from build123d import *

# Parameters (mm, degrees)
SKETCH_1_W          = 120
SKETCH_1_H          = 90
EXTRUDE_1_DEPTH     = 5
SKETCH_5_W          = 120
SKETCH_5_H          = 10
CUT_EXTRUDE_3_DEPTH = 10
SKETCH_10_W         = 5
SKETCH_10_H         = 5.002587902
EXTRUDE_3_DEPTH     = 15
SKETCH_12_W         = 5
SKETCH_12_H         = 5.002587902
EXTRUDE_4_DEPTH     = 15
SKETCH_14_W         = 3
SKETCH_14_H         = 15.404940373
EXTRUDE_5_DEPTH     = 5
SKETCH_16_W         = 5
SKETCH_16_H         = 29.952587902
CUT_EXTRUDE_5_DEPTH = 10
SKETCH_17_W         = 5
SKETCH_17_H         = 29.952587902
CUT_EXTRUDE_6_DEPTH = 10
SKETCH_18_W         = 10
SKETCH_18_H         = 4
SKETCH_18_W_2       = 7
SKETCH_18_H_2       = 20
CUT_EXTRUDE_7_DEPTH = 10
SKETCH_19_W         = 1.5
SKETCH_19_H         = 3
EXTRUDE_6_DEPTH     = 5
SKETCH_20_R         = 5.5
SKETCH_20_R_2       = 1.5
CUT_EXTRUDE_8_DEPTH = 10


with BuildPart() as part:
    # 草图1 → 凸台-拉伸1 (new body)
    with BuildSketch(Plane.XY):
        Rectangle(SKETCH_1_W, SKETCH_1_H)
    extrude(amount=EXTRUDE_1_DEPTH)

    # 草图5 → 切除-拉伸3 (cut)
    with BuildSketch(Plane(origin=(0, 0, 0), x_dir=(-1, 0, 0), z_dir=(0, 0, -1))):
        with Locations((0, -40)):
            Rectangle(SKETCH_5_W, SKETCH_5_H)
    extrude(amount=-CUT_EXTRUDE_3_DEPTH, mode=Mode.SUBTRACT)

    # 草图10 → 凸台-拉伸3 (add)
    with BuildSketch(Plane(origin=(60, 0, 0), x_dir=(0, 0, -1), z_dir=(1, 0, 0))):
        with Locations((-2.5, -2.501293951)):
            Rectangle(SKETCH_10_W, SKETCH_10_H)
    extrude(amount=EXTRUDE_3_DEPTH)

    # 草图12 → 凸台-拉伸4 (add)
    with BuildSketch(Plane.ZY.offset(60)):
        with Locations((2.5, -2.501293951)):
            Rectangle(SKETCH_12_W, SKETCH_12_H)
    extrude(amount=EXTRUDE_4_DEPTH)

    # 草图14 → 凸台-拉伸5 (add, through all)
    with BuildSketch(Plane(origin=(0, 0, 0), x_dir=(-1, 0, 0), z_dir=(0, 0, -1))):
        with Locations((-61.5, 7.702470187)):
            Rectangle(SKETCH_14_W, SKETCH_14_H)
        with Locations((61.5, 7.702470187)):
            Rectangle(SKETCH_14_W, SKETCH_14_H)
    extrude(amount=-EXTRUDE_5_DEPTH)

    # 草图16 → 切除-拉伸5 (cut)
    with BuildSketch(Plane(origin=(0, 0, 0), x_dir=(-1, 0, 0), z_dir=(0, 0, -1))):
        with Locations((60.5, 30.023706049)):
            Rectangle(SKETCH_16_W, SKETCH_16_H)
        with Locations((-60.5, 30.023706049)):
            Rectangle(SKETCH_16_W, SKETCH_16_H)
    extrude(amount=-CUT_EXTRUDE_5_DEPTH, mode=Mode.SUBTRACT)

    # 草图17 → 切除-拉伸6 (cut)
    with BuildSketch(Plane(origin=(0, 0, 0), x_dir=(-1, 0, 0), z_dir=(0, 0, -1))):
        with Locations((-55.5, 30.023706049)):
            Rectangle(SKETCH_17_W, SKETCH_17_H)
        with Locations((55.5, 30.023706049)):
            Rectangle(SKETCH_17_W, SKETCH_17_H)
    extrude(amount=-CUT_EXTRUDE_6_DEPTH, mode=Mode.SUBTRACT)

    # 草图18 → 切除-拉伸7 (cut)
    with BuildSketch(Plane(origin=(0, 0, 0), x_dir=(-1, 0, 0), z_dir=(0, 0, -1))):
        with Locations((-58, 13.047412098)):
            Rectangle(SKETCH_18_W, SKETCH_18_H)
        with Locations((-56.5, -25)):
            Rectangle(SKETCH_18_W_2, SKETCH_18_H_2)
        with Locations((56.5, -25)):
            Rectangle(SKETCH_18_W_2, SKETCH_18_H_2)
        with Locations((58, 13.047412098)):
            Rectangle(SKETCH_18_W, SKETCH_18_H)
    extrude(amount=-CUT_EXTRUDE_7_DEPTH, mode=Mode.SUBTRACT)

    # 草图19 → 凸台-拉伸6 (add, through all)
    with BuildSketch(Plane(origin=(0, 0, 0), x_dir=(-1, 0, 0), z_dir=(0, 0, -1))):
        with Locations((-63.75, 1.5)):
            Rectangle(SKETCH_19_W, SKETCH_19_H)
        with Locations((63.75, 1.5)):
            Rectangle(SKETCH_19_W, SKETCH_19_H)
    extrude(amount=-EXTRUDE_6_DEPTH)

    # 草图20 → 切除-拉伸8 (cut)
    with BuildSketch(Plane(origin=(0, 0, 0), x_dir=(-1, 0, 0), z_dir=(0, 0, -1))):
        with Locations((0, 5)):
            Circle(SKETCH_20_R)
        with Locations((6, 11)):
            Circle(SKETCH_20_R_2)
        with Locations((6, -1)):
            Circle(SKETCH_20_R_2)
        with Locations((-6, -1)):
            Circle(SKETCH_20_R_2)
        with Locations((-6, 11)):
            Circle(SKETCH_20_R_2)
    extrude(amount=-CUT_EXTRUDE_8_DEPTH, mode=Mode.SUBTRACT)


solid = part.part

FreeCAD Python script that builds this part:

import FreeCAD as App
import Part
import Sketcher
Q = App.Units.Quantity


def add_polygon(sketch, points):
    """Adds a closed chain of lines whose ends are joined by coincident constraints."""
    first, n = sketch.GeometryCount, len(points)
    for a, b in zip(points, points[1:] + points[:1]):
        sketch.addGeometry(Part.LineSegment(App.Vector(*a, 0), App.Vector(*b, 0)), False)
    for i in range(n):
        sketch.addConstraint(Sketcher.Constraint("Coincident", first + i, 2, first + (i + 1) % n, 1))

doc = App.newDocument("Part")
params = doc.addObject("Spreadsheet::Sheet", "Params")
for row, (alias, value) in enumerate([
    ("sketch1_width", "120 mm"),
    ("sketch1_height", "90 mm"),
    ("pad1_length", "5 mm"),
    ("sketch2_width", "120 mm"),
    ("sketch2_height", "10 mm"),
    ("pocket1_length", "10 mm"),
    ("sketch3_height", "5 mm"),
    ("pad2_length", "15 mm"),
    ("sketch4_height", "5 mm"),
    ("pad3_length", "15 mm"),
    ("sketch5_width", "3 mm"),
    ("sketch6_width", "5 mm"),
    ("pocket2_length", "10 mm"),
    ("sketch7_width", "5 mm"),
    ("pocket3_length", "10 mm"),
    ("sketch8_width", "10 mm"),
    ("sketch8_width2", "7 mm"),
    ("sketch8_height", "4 mm"),
    ("sketch8_height2", "20 mm"),
    ("pocket4_length", "10 mm"),
    ("sketch9_height", "3 mm"),
    ("sketch9_width", "1.5 mm"),
    ("pad5_length", "5 mm"),
    ("sketch10_diameter", "11 mm"),
    ("sketch10_diameter2", "3 mm"),
    ("pocket5_length", "10 mm"),
], start=1):
    params.set(f"A{row}", alias)
    params.set(f"B{row}", "=" + value)
    params.setAlias(f"B{row}", alias)

body = doc.addObject("PartDesign::Body", "Body")

# Sketch on XY plane
sketch1 = body.newObject("Sketcher::SketchObject", "Sketch")
sketch1.AttachmentSupport = (doc.getObject("XY_Plane"), [""])
sketch1.MapMode = "FlatFace"
add_polygon(sketch1, [(-60, 45), (-60, -45), (60, -45), (60, 45)])  # lines 0-3
sketch1.addConstraint(Sketcher.Constraint("Vertical", 0))
sketch1.addConstraint(Sketcher.Constraint("Horizontal", 1))
sketch1.addConstraint(Sketcher.Constraint("Vertical", 2))
sketch1.addConstraint(Sketcher.Constraint("Horizontal", 3))
sketch1.addConstraint(Sketcher.Constraint("Symmetric", 0, 2, 2, 2, -1, 1))
sketch1.addConstraint(Sketcher.Constraint("DistanceX", 1, 1, 1, 2, Q("120 mm")))
sketch1.addConstraint(Sketcher.Constraint("DistanceY", 0, 2, 0, 1, Q("90 mm")))
sketch1.setExpression("Constraints[9]", "Params.sketch1_width")
sketch1.setExpression("Constraints[10]", "Params.sketch1_height")
pad1 = body.newObject("PartDesign::Pad", "Pad")
pad1.Profile = sketch1
pad1.setExpression("Length", "Params.pad1_length")

# Sketch on XY plane
sketch2 = body.newObject("Sketcher::SketchObject", "Sketch001")
sketch2.AttachmentSupport = (doc.getObject("XY_Plane"), [""])
sketch2.MapMode = "FlatFace"
add_polygon(sketch2, [(60, -35), (60, -45), (-60, -45), (-60, -35)])  # lines 0-3
sketch2.addConstraint(Sketcher.Constraint("Vertical", 0))
sketch2.addConstraint(Sketcher.Constraint("Horizontal", 1))
sketch2.addConstraint(Sketcher.Constraint("Vertical", 2))
sketch2.addConstraint(Sketcher.Constraint("Horizontal", 3))
sketch2.addConstraint(Sketcher.Constraint("DistanceX", 1, 2, 1, 1, Q("120 mm")))
sketch2.addConstraint(Sketcher.Constraint("DistanceY", 0, 2, 0, 1, Q("10 mm")))
sketch2.addConstraint(Sketcher.Constraint("DistanceX", -1, 1, 0, 2, Q("60 mm")))
sketch2.addConstraint(Sketcher.Constraint("DistanceY", 0, 2, -1, 1, Q("45 mm")))
sketch2.setExpression("Constraints[8]", "Params.sketch2_width")
sketch2.setExpression("Constraints[9]", "Params.sketch2_height")
pocket1 = body.newObject("PartDesign::Pocket", "Pocket")
pocket1.Profile = sketch2
pocket1.setExpression("Length", "Params.pocket1_length")
pocket1.Reversed = True

# Sketch on YZ plane
sketch3 = body.newObject("Sketcher::SketchObject", "Sketch002")
sketch3.AttachmentSupport = (doc.getObject("YZ_Plane"), [""])
sketch3.MapMode = "FlatFace"
sketch3.AttachmentOffset = App.Placement(App.Vector(0, 0, 60), App.Rotation())
add_polygon(sketch3, [(0, 5), (-5, 5), (-5, 0), (0, 0)])  # lines 0-3
sketch3.addConstraint(Sketcher.Constraint("Horizontal", 0))
sketch3.addConstraint(Sketcher.Constraint("Vertical", 1))
sketch3.addConstraint(Sketcher.Constraint("Horizontal", 2))
sketch3.addConstraint(Sketcher.Constraint("Vertical", 3))
sketch3.addConstraint(Sketcher.Constraint("Coincident", 2, 2, -1, 1))
sketch3.addConstraint(Sketcher.Constraint("DistanceY", 1, 2, 1, 1, Q("5 mm")))
sketch3.addConstraint(Sketcher.Constraint("DistanceX", 0, 2, 0, 1, Q("5.002588 mm")))
sketch3.setExpression("Constraints[9]", "Params.sketch3_height")
pad2 = body.newObject("PartDesign::Pad", "Pad001")
pad2.Profile = sketch3
pad2.setExpression("Length", "Params.pad2_length")

# Sketch on YZ plane
sketch4 = body.newObject("Sketcher::SketchObject", "Sketch003")
sketch4.AttachmentSupport = (doc.getObject("YZ_Plane"), [""])
sketch4.MapMode = "FlatFace"
sketch4.AttachmentOffset = App.Placement(App.Vector(0, 0, -60), App.Rotation())
add_polygon(sketch4, [(0, 0), (-5, 0), (-5, 5), (0, 5)])  # lines 0-3
sketch4.addConstraint(Sketcher.Constraint("Horizontal", 0))
sketch4.addConstraint(Sketcher.Constraint("Vertical", 1))
sketch4.addConstraint(Sketcher.Constraint("Horizontal", 2))
sketch4.addConstraint(Sketcher.Constraint("Vertical", 3))
sketch4.addConstraint(Sketcher.Constraint("Coincident", 3, 2, -1, 1))
sketch4.addConstraint(Sketcher.Constraint("DistanceY", 1, 1, 1, 2, Q("5 mm")))
sketch4.addConstraint(Sketcher.Constraint("DistanceX", 0, 2, 0, 1, Q("5.002588 mm")))
sketch4.setExpression("Constraints[9]", "Params.sketch4_height")
pad3 = body.newObject("PartDesign::Pad", "Pad002")
pad3.Profile = sketch4
pad3.setExpression("Length", "Params.pad3_length")
pad3.Reversed = True

# Sketch on XY plane
sketch5 = body.newObject("Sketcher::SketchObject", "Sketch004")
sketch5.AttachmentSupport = (doc.getObject("XY_Plane"), [""])
sketch5.MapMode = "FlatFace"
add_polygon(sketch5, [(63, 15.4), (63, 0), (60, 0), (60, 15.4)])  # lines 0-3
add_polygon(sketch5, [(-60, 15.4), (-60, 0), (-63, 0), (-63, 15.4)])  # lines 4-7
sketch5.addConstraint(Sketcher.Constraint("Vertical", 0))
sketch5.addConstraint(Sketcher.Constraint("Horizontal", 1))
sketch5.addConstraint(Sketcher.Constraint("Vertical", 2))
sketch5.addConstraint(Sketcher.Constraint("Horizontal", 3))
sketch5.addConstraint(Sketcher.Constraint("Vertical", 4))
sketch5.addConstraint(Sketcher.Constraint("Horizontal", 5))
sketch5.addConstraint(Sketcher.Constraint("Vertical", 6))
sketch5.addConstraint(Sketcher.Constraint("Horizontal", 7))
sketch5.addConstraint(Sketcher.Constraint("Symmetric", 1, 2, 4, 2, -1, 1))
sketch5.addConstraint(Sketcher.Constraint("Symmetric", 0, 2, 5, 2, -2))
sketch5.addConstraint(Sketcher.Constraint("Horizontal", 3, 2, 6, 2))
sketch5.addConstraint(Sketcher.Constraint("DistanceX", 1, 2, 1, 1, Q("3 mm")))
sketch5.addConstraint(Sketcher.Constraint("DistanceX", -1, 1, 0, 2, Q("63 mm")))
sketch5.addConstraint(Sketcher.Constraint("DistanceY", 0, 2, 0, 1, Q("15.40494 mm")))
sketch5.setExpression("Constraints[19]", "Params.sketch5_width")
pad4 = body.newObject("PartDesign::Pad", "Pad003")
pad4.Profile = sketch5
pad4.Type = "UpToLast"

# Sketch on XY plane
sketch6 = body.newObject("Sketcher::SketchObject", "Sketch005")
sketch6.AttachmentSupport = (doc.getObject("XY_Plane"), [""])
sketch6.MapMode = "FlatFace"
add_polygon(sketch6, [(-58, 45), (-58, 15), (-63, 15), (-63, 45)])  # lines 0-3
add_polygon(sketch6, [(63, 45), (63, 15), (58, 15), (58, 45)])  # lines 4-7
sketch6.addConstraint(Sketcher.Constraint("Vertical", 0))
sketch6.addConstraint(Sketcher.Constraint("Horizontal", 1))
sketch6.addConstraint(Sketcher.Constraint("Vertical", 2))
sketch6.addConstraint(Sketcher.Constraint("Horizontal", 3))
sketch6.addConstraint(Sketcher.Constraint("Vertical", 4))
sketch6.addConstraint(Sketcher.Constraint("Horizontal", 5))
sketch6.addConstraint(Sketcher.Constraint("Vertical", 6))
sketch6.addConstraint(Sketcher.Constraint("Horizontal", 7))
sketch6.addConstraint(Sketcher.Constraint("Symmetric", 1, 2, 4, 2, -2))
sketch6.addConstraint(Sketcher.Constraint("Symmetric", 3, 2, 6, 2, -2))
sketch6.addConstraint(Sketcher.Constraint("DistanceX", 1, 2, 1, 1, Q("5 mm")))
sketch6.addConstraint(Sketcher.Constraint("DistanceX", 0, 2, -1, 1, Q("58 mm")))
sketch6.addConstraint(Sketcher.Constraint("DistanceY", -1, 1, 2, 2, Q("45 mm")))
sketch6.addConstraint(Sketcher.Constraint("DistanceY", 0, 2, 0, 1, Q("29.952588 mm")))
sketch6.setExpression("Constraints[18]", "Params.sketch6_width")
pocket2 = body.newObject("PartDesign::Pocket", "Pocket001")
pocket2.Profile = sketch6
pocket2.setExpression("Length", "Params.pocket2_length")
pocket2.Reversed = True

# Sketch on XY plane
sketch7 = body.newObject("Sketcher::SketchObject", "Sketch006")
sketch7.AttachmentSupport = (doc.getObject("XY_Plane"), [""])
sketch7.MapMode = "FlatFace"
add_polygon(sketch7, [(58, 45), (58, 15), (53, 15), (53, 45)])  # lines 0-3
add_polygon(sketch7, [(-53, 45), (-53, 15), (-58, 15), (-58, 45)])  # lines 4-7
sketch7.addConstraint(Sketcher.Constraint("Vertical", 0))
sketch7.addConstraint(Sketcher.Constraint("Horizontal", 1))
sketch7.addConstraint(Sketcher.Constraint("Vertical", 2))
sketch7.addConstraint(Sketcher.Constraint("Horizontal", 3))
sketch7.addConstraint(Sketcher.Constraint("Vertical", 4))
sketch7.addConstraint(Sketcher.Constraint("Horizontal", 5))
sketch7.addConstraint(Sketcher.Constraint("Vertical", 6))
sketch7.addConstraint(Sketcher.Constraint("Horizontal", 7))
sketch7.addConstraint(Sketcher.Constraint("Symmetric", 1, 2, 4, 2, -2))
sketch7.addConstraint(Sketcher.Constraint("Symmetric", 3, 2, 6, 2, -2))
sketch7.addConstraint(Sketcher.Constraint("DistanceX", 1, 2, 1, 1, Q("5 mm")))
sketch7.addConstraint(Sketcher.Constraint("DistanceX", -1, 1, 0, 2, Q("58 mm")))
sketch7.addConstraint(Sketcher.Constraint("DistanceY", -1, 1, 2, 2, Q("45 mm")))
sketch7.addConstraint(Sketcher.Constraint("DistanceY", 0, 2, 0, 1, Q("29.952588 mm")))
sketch7.setExpression("Constraints[18]", "Params.sketch7_width")
pocket3 = body.newObject("PartDesign::Pocket", "Pocket002")
pocket3.Profile = sketch7
pocket3.setExpression("Length", "Params.pocket3_length")
pocket3.Reversed = True

# Sketch on XY plane
sketch8 = body.newObject("Sketcher::SketchObject", "Sketch007")
sketch8.AttachmentSupport = (doc.getObject("XY_Plane"), [""])
sketch8.MapMode = "FlatFace"
add_polygon(sketch8, [(63, 15), (63, 11), (53, 11), (53, 15)])  # lines 0-3
add_polygon(sketch8, [(60, -15), (60, -35), (53, -35), (53, -15)])  # lines 4-7
add_polygon(sketch8, [(-53, -15), (-53, -35), (-60, -35), (-60, -15)])  # lines 8-11
add_polygon(sketch8, [(-53, 15), (-53, 11), (-63, 11), (-63, 15)])  # lines 12-15
sketch8.addConstraint(Sketcher.Constraint("Vertical", 0))
sketch8.addConstraint(Sketcher.Constraint("Horizontal", 1))
sketch8.addConstraint(Sketcher.Constraint("Vertical", 2))
sketch8.addConstraint(Sketcher.Constraint("Horizontal", 3))
sketch8.addConstraint(Sketcher.Constraint("Vertical", 4))
sketch8.addConstraint(Sketcher.Constraint("Horizontal", 5))
sketch8.addConstraint(Sketcher.Constraint("Vertical", 6))
sketch8.addConstraint(Sketcher.Constraint("Horizontal", 7))
sketch8.addConstraint(Sketcher.Constraint("Vertical", 8))
sketch8.addConstraint(Sketcher.Constraint("Horizontal", 9))
sketch8.addConstraint(Sketcher.Constraint("Vertical", 10))
sketch8.addConstraint(Sketcher.Constraint("Horizontal", 11))
sketch8.addConstraint(Sketcher.Constraint("Vertical", 12))
sketch8.addConstraint(Sketcher.Constraint("Horizontal", 13))
sketch8.addConstraint(Sketcher.Constraint("Vertical", 14))
sketch8.addConstraint(Sketcher.Constraint("Horizontal", 15))
sketch8.addConstraint(Sketcher.Constraint("Symmetric", 5, 2, 8, 2, -2))
sketch8.addConstraint(Sketcher.Constraint("Symmetric", 7, 2, 10, 2, -2))
sketch8.addConstraint(Sketcher.Constraint("Symmetric", 1, 2, 12, 2, -2))
sketch8.addConstraint(Sketcher.Constraint("Symmetric", 3, 2, 14, 2, -2))
sketch8.addConstraint(Sketcher.Constraint("Vertical", 2, 2, 5, 2))
sketch8.addConstraint(Sketcher.Constraint("DistanceX", 1, 2, 1, 1, Q("10 mm")))
sketch8.addConstraint(Sketcher.Constraint("DistanceX", 5, 2, 5, 1, Q("7 mm")))
sketch8.addConstraint(Sketcher.Constraint("DistanceY", 0, 2, 0, 1, Q("4 mm")))
sketch8.addConstraint(Sketcher.Constraint("DistanceY", 4, 2, 4, 1, Q("20 mm")))
sketch8.addConstraint(Sketcher.Constraint("DistanceX", -1, 1, 0, 2, Q("63 mm")))
sketch8.addConstraint(Sketcher.Constraint("DistanceY", 4, 2, -1, 1, Q("35 mm")))
sketch8.addConstraint(Sketcher.Constraint("DistanceY", -1, 1, 0, 2, Q("11.047412 mm")))
sketch8.setExpression("Constraints[37]", "Params.sketch8_width")
sketch8.setExpression("Constraints[38]", "Params.sketch8_width2")
sketch8.setExpression("Constraints[39]", "Params.sketch8_height")
sketch8.setExpression("Constraints[40]", "Params.sketch8_height2")
pocket4 = body.newObject("PartDesign::Pocket", "Pocket003")
pocket4.Profile = sketch8
pocket4.setExpression("Length", "Params.pocket4_length")
pocket4.Reversed = True

# Sketch on XY plane
sketch9 = body.newObject("Sketcher::SketchObject", "Sketch008")
sketch9.AttachmentSupport = (doc.getObject("XY_Plane"), [""])
sketch9.MapMode = "FlatFace"
add_polygon(sketch9, [(64.5, 3), (64.5, 0), (63, 0), (63, 3)])  # lines 0-3
add_polygon(sketch9, [(-63, 3), (-63, 0), (-64.5, 0), (-64.5, 3)])  # lines 4-7
sketch9.addConstraint(Sketcher.Constraint("Vertical", 0))
sketch9.addConstraint(Sketcher.Constraint("Horizontal", 1))
sketch9.addConstraint(Sketcher.Constraint("Vertical", 2))
sketch9.addConstraint(Sketcher.Constraint("Horizontal", 3))
sketch9.addConstraint(Sketcher.Constraint("Vertical", 4))
sketch9.addConstraint(Sketcher.Constraint("Horizontal", 5))
sketch9.addConstraint(Sketcher.Constraint("Vertical", 6))
sketch9.addConstraint(Sketcher.Constraint("Horizontal", 7))
sketch9.addConstraint(Sketcher.Constraint("Symmetric", 1, 2, 4, 2, -1, 1))
sketch9.addConstraint(Sketcher.Constraint("Symmetric", 0, 2, 5, 2, -2))
sketch9.addConstraint(Sketcher.Constraint("Horizontal", 3, 2, 6, 2))
sketch9.addConstraint(Sketcher.Constraint("DistanceY", 0, 2, 0, 1, Q("3 mm")))
sketch9.addConstraint(Sketcher.Constraint("DistanceX", 1, 2, 1, 1, Q("1.5 mm")))
sketch9.addConstraint(Sketcher.Constraint("DistanceX", -1, 1, 1, 2, Q("63 mm")))
sketch9.setExpression("Constraints[19]", "Params.sketch9_height")
sketch9.setExpression("Constraints[20]", "Params.sketch9_width")
pad5 = body.newObject("PartDesign::Pad", "Pad004")
pad5.Profile = sketch9
pad5.setExpression("Length", "Params.pad5_length")

# Sketch on XY plane
sketch10 = body.newObject("Sketcher::SketchObject", "Sketch009")
sketch10.AttachmentSupport = (doc.getObject("XY_Plane"), [""])
sketch10.MapMode = "FlatFace"
sketch10.addGeometry(Part.Circle(App.Vector(0, 5, 0), App.Vector(0, 0, 1), 5.5), False)
sketch10.addGeometry(Part.Circle(App.Vector(-6, 11, 0), App.Vector(0, 0, 1), 1.5), False)
sketch10.addGeometry(Part.Circle(App.Vector(-6, -1, 0), App.Vector(0, 0, 1), 1.5), False)
sketch10.addGeometry(Part.Circle(App.Vector(6, -1, 0), App.Vector(0, 0, 1), 1.5), False)
sketch10.addGeometry(Part.Circle(App.Vector(6, 11, 0), App.Vector(0, 0, 1), 1.5), False)
sketch10.addConstraint(Sketcher.Constraint("Equal", 1, 2))
sketch10.addConstraint(Sketcher.Constraint("Equal", 2, 3))
sketch10.addConstraint(Sketcher.Constraint("Equal", 3, 4))
sketch10.addConstraint(Sketcher.Constraint("Symmetric", 2, 3, 3, 3, -2))
sketch10.addConstraint(Sketcher.Constraint("Symmetric", 1, 3, 4, 3, -2))
sketch10.addConstraint(Sketcher.Constraint("PointOnObject", 0, 3, -2))
sketch10.addConstraint(Sketcher.Constraint("Vertical", 1, 3, 2, 3))
sketch10.addConstraint(Sketcher.Constraint("Diameter", 0, Q("11 mm")))
sketch10.addConstraint(Sketcher.Constraint("Diameter", 1, Q("3 mm")))
sketch10.addConstraint(Sketcher.Constraint("DistanceY", -1, 1, 0, 3, Q("5 mm")))
sketch10.addConstraint(Sketcher.Constraint("DistanceX", 1, 3, -1, 1, Q("6 mm")))
sketch10.addConstraint(Sketcher.Constraint("DistanceY", -1, 1, 1, 3, Q("11 mm")))
sketch10.addConstraint(Sketcher.Constraint("DistanceY", 2, 3, -1, 1, Q("1 mm")))
sketch10.setExpression("Constraints[7]", "Params.sketch10_diameter")
sketch10.setExpression("Constraints[8]", "Params.sketch10_diameter2")
pocket5 = body.newObject("PartDesign::Pocket", "Pocket004")
pocket5.Profile = sketch10
pocket5.setExpression("Length", "Params.pocket5_length")
pocket5.Reversed = True

doc.recompute()
